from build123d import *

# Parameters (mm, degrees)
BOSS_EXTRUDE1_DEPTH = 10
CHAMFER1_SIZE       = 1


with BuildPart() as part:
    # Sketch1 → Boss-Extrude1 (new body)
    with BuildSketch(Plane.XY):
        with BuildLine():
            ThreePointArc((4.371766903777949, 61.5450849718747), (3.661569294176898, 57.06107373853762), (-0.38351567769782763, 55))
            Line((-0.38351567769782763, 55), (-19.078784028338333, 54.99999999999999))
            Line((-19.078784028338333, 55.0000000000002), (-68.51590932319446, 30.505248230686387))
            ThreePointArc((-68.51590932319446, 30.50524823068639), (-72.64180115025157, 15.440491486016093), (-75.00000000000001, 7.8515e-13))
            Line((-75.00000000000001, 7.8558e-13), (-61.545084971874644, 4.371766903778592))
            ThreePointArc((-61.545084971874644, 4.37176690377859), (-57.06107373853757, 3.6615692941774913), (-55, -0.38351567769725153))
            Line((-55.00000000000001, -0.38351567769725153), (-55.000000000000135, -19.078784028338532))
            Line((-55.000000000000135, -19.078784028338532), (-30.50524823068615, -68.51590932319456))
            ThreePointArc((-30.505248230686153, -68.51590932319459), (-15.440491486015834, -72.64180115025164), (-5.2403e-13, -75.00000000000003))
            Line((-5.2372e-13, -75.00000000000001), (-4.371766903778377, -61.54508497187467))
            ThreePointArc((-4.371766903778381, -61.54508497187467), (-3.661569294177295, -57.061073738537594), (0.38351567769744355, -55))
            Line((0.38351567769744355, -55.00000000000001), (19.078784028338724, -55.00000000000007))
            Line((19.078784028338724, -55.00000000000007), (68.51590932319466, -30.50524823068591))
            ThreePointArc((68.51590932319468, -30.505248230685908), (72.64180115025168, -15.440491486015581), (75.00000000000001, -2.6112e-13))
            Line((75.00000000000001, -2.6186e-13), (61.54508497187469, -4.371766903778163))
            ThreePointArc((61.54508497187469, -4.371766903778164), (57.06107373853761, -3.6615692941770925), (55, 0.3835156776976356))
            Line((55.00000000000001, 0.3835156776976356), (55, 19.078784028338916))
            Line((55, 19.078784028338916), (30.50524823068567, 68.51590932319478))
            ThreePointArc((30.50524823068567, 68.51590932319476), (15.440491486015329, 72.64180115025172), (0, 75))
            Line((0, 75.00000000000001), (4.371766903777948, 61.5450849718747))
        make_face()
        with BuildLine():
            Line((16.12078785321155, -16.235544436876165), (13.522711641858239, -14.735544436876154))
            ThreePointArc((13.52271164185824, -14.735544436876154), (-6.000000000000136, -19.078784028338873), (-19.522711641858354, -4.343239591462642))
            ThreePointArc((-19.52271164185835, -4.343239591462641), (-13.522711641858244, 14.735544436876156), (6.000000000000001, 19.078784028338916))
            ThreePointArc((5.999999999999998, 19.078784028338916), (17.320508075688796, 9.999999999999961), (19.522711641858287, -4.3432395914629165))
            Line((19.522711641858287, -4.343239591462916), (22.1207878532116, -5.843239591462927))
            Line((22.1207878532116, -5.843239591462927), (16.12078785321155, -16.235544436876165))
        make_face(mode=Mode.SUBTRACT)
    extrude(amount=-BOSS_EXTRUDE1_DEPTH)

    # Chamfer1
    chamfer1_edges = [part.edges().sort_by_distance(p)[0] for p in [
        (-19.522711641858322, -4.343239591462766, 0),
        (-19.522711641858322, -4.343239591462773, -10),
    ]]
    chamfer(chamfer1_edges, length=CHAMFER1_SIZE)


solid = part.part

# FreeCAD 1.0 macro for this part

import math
import FreeCAD as App
import Part
import Sketcher

V = App.Vector
Q = App.Units.Quantity


def edges_at(feature, points):
    """Names of the edges that pass closest to the given points."""
    edges = feature.Shape.Edges
    near = lambda p: min(range(len(edges)), key=lambda i: edges[i].distToShape(Part.Vertex(*p))[0])
    return sorted({f"Edge{near(p) + 1}" for p in points})

doc = App.newDocument("Part")
body = doc.addObject("PartDesign::Body", "Body")

sketch1 = doc.addObject("Sketcher::SketchObject", "Sketch")
body.addObject(sketch1)
sketch1.AttachmentSupport = (doc.XY_Plane, [""])
sketch1.MapMode = "FlatFace"
sketch1.addGeometry([
    Part.ArcOfCircle(Part.Circle(V(-0.4, 60, 0), V(0, 0, 1), 5), math.radians(-90), math.radians(18)),
    Part.LineSegment(V(-0.4, 55, 0), V(-19.1, 55, 0)),
    Part.LineSegment(V(-19.1, 55, 0), V(-68.5, 30.5, 0)),
    Part.ArcOfCircle(Part.Circle(V(59.4, -12.6, 0), V(0, 0, 1), 135), math.radians(161.37), math.radians(174.63)),
    Part.LineSegment(V(-75, 0, 0), V(-61.5, 4.4, 0)),
    Part.ArcOfCircle(Part.Circle(V(-60, -0.4, 0), V(0, 0, 1), 5), math.radians(0), math.radians(108)),
    Part.LineSegment(V(-55, -0.4, 0), V(-55, -19.1, 0)),
    Part.LineSegment(V(-55, -19.1, 0), V(-30.5, -68.5, 0)),
    Part.ArcOfCircle(Part.Circle(V(12.6, 59.4, 0), V(0, 0, 1), 135), math.radians(-108.63), math.radians(-95.37)),
    Part.LineSegment(V(0, -75, 0), V(-4.4, -61.5, 0)),
    Part.ArcOfCircle(Part.Circle(V(0.4, -60, 0), V(0, 0, 1), 5), math.radians(90), math.radians(198)),
    Part.LineSegment(V(0.4, -55, 0), V(19.1, -55, 0)),
    Part.LineSegment(V(19.1, -55, 0), V(68.5, -30.5, 0)),
    Part.ArcOfCircle(Part.Circle(V(-59.4, 12.6, 0), V(0, 0, 1), 135), math.radians(-18.63), math.radians(-5.37)),
    Part.LineSegment(V(75, 0, 0), V(61.5, -4.4, 0)),
    Part.ArcOfCircle(Part.Circle(V(60, 0.4, 0), V(0, 0, 1), 5), math.radians(180), math.radians(288)),
    Part.LineSegment(V(55, 0.4, 0), V(55, 19.1, 0)),
    Part.LineSegment(V(55, 19.1, 0), V(30.5, 68.5, 0)),
    Part.ArcOfCircle(Part.Circle(V(-12.6, -59.4, 0), V(0, 0, 1), 135), math.radians(71.37), math.radians(84.63)),
    Part.LineSegment(V(0, 75, 0), V(4.4, 61.5, 0)),
    Part.LineSegment(V(22.1, -5.8, 0), V(16.1, -16.2, 0)),
    Part.LineSegment(V(16.1, -16.2, 0), V(13.5, -14.7, 0)),
    Part.ArcOfCircle(Part.Circle(V(0, 0, 0), V(0, 0, 1), 20), math.radians(-13), math.radians(313)),
    Part.LineSegment(V(19.5, -4.3, 0), V(22.1, -5.8, 0)),
], False)
sketch1.addConstraint([
    Sketcher.Constraint("Tangent", 0, 1, 1, 1),
    Sketcher.Constraint("Coincident", 1, 2, 2, 1),
    Sketcher.Constraint("Coincident", 2, 2, 3, 1),
    Sketcher.Constraint("Coincident", 3, 2, 4, 1),
    Sketcher.Constraint("Tangent", 4, 2, 5, 2),
    Sketcher.Constraint("Tangent", 5, 1, 6, 1),
    Sketcher.Constraint("Coincident", 6, 2, 7, 1),
    Sketcher.Constraint("Coincident", 7, 2, 8, 1),
    Sketcher.Constraint("Coincident", 8, 2, 9, 1),
    Sketcher.Constraint("Tangent", 9, 2, 10, 2),
    Sketcher.Constraint("Tangent", 10, 1, 11, 1),
    Sketcher.Constraint("Coincident", 11, 2, 12, 1),
    Sketcher.Constraint("Coincident", 12, 2, 13, 1),
    Sketcher.Constraint("Coincident", 13, 2, 14, 1),
    Sketcher.Constraint("Tangent", 14, 2, 15, 2),
    Sketcher.Constraint("Tangent", 15, 1, 16, 1),
    Sketcher.Constraint("Coincident", 16, 2, 17, 1),
    Sketcher.Constraint("Coincident", 17, 2, 18, 1),
    Sketcher.Constraint("Coincident", 18, 2, 19, 1),
    Sketcher.Constraint("Tangent", 19, 2, 0, 2),
    Sketcher.Constraint("Coincident", 20, 2, 21, 1),
    Sketcher.Constraint("Coincident", 21, 2, 22, 2),
    Sketcher.Constraint("Coincident", 22, 1, 23, 1),
    Sketcher.Constraint("Coincident", 23, 2, 20, 1),
    Sketcher.Constraint("Horizontal", 1),
    Sketcher.Constraint("Vertical", 6),
    Sketcher.Constraint("Horizontal", 11),
    Sketcher.Constraint("Vertical", 16),
    Sketcher.Constraint("Coincident", 22, 3, -1, 1),
    Sketcher.Constraint("Equal", 0, 5),
    Sketcher.Constraint("Equal", 3, 8),
    Sketcher.Constraint("Equal", 5, 10),
    Sketcher.Constraint("Equal", 8, 13),
    Sketcher.Constraint("Equal", 10, 15),
    Sketcher.Constraint("Equal", 13, 18),
    Sketcher.Constraint("Symmetric", 0, 3, 10, 3, -1, 1),
    Sketcher.Constraint("Symmetric", 3, 3, 13, 3, -1, 1),
    Sketcher.Constraint("Symmetric", 5, 3, 15, 3, -1, 1),
    Sketcher.Constraint("Symmetric", 8, 3, 18, 3, -1, 1),
    Sketcher.Constraint("Symmetric", 3, 2, 13, 2, -2),
    Sketcher.Constraint("Symmetric", 8, 2, 18, 2, -1),
    Sketcher.Constraint("Perpendicular", 2, 7),
    Sketcher.Constraint("Perpendicular", 4, 9),
    Sketcher.Constraint("Perpendicular", 7, 12),
    Sketcher.Constraint("Perpendicular", 12, 17),
    Sketcher.Constraint("Perpendicular", 20, 21),
    Sketcher.Constraint("Parallel", 21, 23),
    Sketcher.Constraint("Equal", 1, 11),
    Sketcher.Constraint("Equal", 11, 6),
    Sketcher.Constraint("Equal", 6, 16),
    Sketcher.Constraint("Equal", 2, 7),
    Sketcher.Constraint("Equal", 4, 9),
    Sketcher.Constraint("Equal", 21, 23),
    Sketcher.Constraint("Radius", 0, 5.0),
    Sketcher.Constraint("Radius", 3, 135.0),
    Sketcher.Constraint("Radius", 22, 20.0),
    Sketcher.Constraint("Angle", 4, Q("18 deg")),
    Sketcher.Constraint("Angle", 20, Q("-120 deg")),
    Sketcher.Constraint("Distance", 20, 12.0),
    Sketcher.Constraint("Distance", 21, 3.0),
    Sketcher.Constraint("DistanceY", -1, 1, 0, 3, 60.0),
    Sketcher.Constraint("DistanceX", 5, 3, -1, 1, 60.0),
    Sketcher.Constraint("DistanceX", 3, 2, -1, 1, 75.0),
    Sketcher.Constraint("DistanceX", 1, 2, 1, 1, 18.695268),
    Sketcher.Constraint("Distance", 2, 55.172658),
    Sketcher.Constraint("DistanceX", 2, 2, -1, 1, 68.515909),
])
pad1 = doc.addObject("PartDesign::Pad", "Pad")
body.addObject(pad1)
pad1.Profile = sketch1
pad1.Length = 10
pad1.Reversed = True
doc.recompute()

chamfer = doc.addObject("PartDesign::Chamfer", "Chamfer")
body.addObject(chamfer)
chamfer.Base = (pad1, edges_at(pad1, [(-17.321, 10, 0), (-17.321, 10, -10)]))
chamfer.Size = 1

doc.recompute()
